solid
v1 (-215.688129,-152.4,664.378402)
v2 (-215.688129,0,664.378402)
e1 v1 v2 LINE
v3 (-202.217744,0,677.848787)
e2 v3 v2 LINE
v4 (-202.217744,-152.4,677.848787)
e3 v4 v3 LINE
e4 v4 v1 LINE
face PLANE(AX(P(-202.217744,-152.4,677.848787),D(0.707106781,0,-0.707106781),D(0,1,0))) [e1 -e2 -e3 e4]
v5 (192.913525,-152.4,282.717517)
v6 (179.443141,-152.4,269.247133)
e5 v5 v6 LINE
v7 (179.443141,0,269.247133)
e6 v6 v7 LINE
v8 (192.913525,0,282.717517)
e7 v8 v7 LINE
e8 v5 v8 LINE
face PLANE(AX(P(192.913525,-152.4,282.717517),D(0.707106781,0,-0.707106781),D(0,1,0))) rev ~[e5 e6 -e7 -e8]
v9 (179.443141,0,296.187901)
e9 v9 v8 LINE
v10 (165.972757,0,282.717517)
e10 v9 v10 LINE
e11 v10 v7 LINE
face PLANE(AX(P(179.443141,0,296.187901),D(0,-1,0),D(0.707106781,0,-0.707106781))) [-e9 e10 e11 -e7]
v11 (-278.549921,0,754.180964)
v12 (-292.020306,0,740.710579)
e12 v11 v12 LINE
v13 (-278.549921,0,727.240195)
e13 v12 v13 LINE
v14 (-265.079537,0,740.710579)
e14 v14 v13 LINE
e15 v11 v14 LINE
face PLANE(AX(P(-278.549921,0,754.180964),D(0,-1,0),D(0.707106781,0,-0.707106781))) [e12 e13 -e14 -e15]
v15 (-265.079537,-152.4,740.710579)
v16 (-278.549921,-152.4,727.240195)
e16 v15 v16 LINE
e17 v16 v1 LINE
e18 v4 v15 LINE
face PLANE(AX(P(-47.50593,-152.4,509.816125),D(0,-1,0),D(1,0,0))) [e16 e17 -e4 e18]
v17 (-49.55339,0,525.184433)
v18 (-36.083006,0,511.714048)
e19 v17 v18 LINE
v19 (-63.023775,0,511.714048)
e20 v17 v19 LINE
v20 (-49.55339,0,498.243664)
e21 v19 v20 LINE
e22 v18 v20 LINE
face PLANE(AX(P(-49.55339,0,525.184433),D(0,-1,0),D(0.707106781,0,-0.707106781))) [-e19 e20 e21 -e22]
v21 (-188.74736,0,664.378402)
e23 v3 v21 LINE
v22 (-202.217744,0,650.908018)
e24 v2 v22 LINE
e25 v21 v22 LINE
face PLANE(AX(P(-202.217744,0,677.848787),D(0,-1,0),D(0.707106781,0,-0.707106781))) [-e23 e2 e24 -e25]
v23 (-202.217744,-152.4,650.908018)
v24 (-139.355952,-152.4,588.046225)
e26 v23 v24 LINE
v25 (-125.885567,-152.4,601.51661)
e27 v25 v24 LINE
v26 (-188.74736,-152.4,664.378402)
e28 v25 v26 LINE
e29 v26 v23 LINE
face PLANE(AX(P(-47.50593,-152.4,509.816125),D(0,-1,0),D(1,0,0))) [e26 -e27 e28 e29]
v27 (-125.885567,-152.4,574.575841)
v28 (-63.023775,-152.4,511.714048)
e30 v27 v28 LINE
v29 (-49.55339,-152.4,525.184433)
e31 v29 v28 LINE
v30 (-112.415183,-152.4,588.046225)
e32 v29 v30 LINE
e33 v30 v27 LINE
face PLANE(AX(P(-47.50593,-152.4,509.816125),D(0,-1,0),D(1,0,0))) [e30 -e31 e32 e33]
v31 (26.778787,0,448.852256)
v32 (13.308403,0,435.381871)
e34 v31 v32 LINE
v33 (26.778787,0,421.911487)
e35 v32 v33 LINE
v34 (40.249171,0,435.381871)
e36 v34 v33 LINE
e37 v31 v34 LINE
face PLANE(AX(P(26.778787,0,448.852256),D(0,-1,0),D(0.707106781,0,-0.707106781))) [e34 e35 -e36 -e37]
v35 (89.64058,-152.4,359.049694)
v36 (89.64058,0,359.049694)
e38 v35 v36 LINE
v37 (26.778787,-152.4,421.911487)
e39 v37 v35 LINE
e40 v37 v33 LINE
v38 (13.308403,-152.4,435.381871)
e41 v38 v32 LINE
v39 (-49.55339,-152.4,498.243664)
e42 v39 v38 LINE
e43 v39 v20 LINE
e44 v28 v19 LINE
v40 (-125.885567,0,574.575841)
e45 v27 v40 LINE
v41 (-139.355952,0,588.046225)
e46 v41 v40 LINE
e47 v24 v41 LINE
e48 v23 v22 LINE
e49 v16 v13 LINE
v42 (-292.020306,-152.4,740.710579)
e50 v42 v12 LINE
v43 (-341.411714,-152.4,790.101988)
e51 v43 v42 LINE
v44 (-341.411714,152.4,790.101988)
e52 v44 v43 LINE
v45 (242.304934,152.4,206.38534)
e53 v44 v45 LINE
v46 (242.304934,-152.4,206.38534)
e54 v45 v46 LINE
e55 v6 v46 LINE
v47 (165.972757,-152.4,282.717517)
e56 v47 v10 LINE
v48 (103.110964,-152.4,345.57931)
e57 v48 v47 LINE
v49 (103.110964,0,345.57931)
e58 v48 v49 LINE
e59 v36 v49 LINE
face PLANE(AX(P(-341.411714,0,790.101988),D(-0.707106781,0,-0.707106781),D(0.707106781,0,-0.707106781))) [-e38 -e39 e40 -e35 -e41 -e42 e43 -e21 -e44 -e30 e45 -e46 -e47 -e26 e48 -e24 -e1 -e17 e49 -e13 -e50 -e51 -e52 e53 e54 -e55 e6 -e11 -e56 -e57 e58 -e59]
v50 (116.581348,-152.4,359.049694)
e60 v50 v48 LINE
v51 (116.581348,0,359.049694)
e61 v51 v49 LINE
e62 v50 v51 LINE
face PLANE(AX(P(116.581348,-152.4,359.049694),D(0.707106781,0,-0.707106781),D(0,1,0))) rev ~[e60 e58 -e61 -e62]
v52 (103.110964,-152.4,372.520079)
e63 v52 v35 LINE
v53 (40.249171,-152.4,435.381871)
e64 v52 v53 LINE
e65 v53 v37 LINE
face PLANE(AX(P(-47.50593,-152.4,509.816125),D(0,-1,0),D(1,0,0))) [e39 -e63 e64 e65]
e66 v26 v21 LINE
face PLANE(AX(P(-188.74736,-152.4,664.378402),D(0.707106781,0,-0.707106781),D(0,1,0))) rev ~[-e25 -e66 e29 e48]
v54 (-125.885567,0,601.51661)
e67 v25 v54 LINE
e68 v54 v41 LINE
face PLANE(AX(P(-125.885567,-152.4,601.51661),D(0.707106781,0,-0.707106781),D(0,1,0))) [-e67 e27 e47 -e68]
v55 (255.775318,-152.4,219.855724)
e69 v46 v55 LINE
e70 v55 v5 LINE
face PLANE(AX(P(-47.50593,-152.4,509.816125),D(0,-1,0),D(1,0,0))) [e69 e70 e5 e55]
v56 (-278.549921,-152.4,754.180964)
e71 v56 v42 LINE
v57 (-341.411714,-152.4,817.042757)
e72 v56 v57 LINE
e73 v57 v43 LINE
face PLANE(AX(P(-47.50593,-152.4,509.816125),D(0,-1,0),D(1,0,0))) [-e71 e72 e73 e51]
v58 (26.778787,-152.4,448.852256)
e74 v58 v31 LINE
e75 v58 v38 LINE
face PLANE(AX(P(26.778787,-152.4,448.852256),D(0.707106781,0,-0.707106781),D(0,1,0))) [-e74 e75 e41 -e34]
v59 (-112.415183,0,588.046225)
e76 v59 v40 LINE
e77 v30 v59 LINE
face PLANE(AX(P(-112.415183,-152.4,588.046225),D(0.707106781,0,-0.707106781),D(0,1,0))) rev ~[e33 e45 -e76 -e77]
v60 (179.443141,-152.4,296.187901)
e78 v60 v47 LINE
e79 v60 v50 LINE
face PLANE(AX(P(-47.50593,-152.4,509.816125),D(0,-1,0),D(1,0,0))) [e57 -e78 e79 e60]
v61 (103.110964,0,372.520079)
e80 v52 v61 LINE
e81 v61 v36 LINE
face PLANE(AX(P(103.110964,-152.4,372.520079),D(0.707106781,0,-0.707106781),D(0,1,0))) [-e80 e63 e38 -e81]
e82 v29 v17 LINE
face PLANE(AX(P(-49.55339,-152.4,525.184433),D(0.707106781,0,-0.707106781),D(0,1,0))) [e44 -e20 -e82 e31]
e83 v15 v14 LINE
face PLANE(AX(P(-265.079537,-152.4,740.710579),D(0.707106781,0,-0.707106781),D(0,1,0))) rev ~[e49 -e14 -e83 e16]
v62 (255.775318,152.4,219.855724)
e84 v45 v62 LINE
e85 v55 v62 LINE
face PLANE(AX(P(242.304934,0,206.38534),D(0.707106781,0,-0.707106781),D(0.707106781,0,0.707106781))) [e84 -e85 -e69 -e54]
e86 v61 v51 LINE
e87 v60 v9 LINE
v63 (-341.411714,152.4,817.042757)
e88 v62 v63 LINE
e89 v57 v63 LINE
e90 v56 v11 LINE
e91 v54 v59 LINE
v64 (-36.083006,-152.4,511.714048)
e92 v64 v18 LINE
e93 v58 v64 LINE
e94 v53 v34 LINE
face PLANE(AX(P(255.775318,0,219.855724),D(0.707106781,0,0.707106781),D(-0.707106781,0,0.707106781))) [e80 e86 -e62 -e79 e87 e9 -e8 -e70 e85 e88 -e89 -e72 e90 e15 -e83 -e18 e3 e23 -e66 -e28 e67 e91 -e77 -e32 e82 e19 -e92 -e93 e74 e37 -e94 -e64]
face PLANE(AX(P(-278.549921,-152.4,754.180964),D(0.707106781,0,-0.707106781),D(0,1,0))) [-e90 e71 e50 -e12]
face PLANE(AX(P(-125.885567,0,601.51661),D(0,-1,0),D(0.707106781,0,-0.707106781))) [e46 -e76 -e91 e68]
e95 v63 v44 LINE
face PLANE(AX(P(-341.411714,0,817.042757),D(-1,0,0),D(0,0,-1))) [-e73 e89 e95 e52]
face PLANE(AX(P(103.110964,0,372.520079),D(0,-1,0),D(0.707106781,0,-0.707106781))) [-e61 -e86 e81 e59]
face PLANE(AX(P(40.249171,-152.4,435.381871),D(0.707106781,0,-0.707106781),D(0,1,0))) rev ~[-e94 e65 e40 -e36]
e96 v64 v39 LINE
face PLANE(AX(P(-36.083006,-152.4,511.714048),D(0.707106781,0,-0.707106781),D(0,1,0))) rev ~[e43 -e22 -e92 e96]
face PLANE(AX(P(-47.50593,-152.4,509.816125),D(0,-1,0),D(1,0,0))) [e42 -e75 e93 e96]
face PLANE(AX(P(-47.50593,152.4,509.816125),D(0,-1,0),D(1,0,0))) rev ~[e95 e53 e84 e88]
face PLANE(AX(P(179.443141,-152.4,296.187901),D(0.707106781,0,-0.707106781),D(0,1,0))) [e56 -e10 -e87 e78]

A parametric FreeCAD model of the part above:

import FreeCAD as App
import Part
import Sketcher

V = App.Vector
Q = App.Units.Quantity


def add_polygon(sketch, points):
    """Adds a closed chain of lines whose ends are joined by coincident constraints."""
    first, n = sketch.GeometryCount, len(points)
    for a, b in zip(points, points[1:] + points[:1]):
        sketch.addGeometry(Part.LineSegment(App.Vector(*a, 0), App.Vector(*b, 0)), False)
    for i in range(n):
        sketch.addConstraint(Sketcher.Constraint("Coincident", first + i, 2, first + (i + 1) % n, 1))

doc = App.newDocument("Part")
body = doc.addObject("PartDesign::Body", "Body")

sketch1 = body.newObject("Sketcher::SketchObject", "Sketch")
sketch1.AttachmentSupport = (doc.getObject("XZ_Plane"), [""])
sketch1.MapMode = "FlatFace"
add_polygon(sketch1, [(-341.411714, 817.042757), (-341.411714, 790.101988), (242.304934, 206.38534), (255.775318, 219.855724)])
sketch1.addConstraint([
    Sketcher.Constraint("Vertical", 0),
    Sketcher.Constraint("Perpendicular", 1, 2),
    Sketcher.Constraint("Perpendicular", 2, 3),
    Sketcher.Constraint("Angle", 1, Q("-45 deg")),
    Sketcher.Constraint("Distance", 1, Q("32.5 in")),
    Sketcher.Constraint("Distance", 2, Q("0.75 in")),
    Sketcher.Constraint("DistanceY", -1, 1, 0, 2, Q("790.101988 mm")),
    Sketcher.Constraint("DistanceX", 0, 2, -1, 1, Q("341.411714 mm")),
])
pad1 = body.newObject("PartDesign::Pad", "Pad")
pad1.Profile = sketch1
pad1.Length = Q("12 in")
pad1.Midplane = True

sketch2 = body.newObject("Sketcher::SketchObject", "Sketch001")
sketch2.Placement = App.Placement(V(237.815521, 0, 237.815521), App.Rotation(V(0.707106781, 0, -0.707106781), V(0, 0.999999999, 0), V(0.707106781, 0, 0.707106781), "ZXY"))
add_polygon(sketch2, [(-730.251012, 0), (-730.251012, -152.4), (-711.201012, -152.4), (-711.201012, 0)])
add_polygon(sketch2, [(-622.301012, 0), (-622.301012, -152.4), (-603.251012, -152.4), (-603.251012, 0)])
add_polygon(sketch2, [(-514.351012, 0), (-514.351012, -152.4), (-495.301012, -152.4), (-495.301012, 0)])
add_polygon(sketch2, [(-406.401012, 0), (-406.401012, -152.4), (-387.351012, -152.4), (-387.351012, 0)])
add_polygon(sketch2, [(-298.451012, 0), (-298.451012, -152.4), (-279.401012, -152.4), (-279.401012, 0)])
add_polygon(sketch2, [(-190.501012, 0), (-190.501012, -152.4), (-171.451012, -152.4), (-171.451012, 0)])
add_polygon(sketch2, [(-82.551012, 0), (-82.551012, -152.4), (-63.501012, -152.4), (-63.501012, 0)])
sketch2.addConstraint([
    Sketcher.Constraint("Vertical", 0),
    Sketcher.Constraint("Horizontal", 1),
    Sketcher.Constraint("Vertical", 2),
    Sketcher.Constraint("Horizontal", 3),
    Sketcher.Constraint("Vertical", 4),
    Sketcher.Constraint("Horizontal", 5),
    Sketcher.Constraint("Vertical", 6),
    Sketcher.Constraint("Horizontal", 7),
    Sketcher.Constraint("Vertical", 8),
    Sketcher.Constraint("Horizontal", 9),
    Sketcher.Constraint("Vertical", 10),
    Sketcher.Constraint("Horizontal", 11),
    Sketcher.Constraint("Vertical", 12),
    Sketcher.Constraint("Horizontal", 13),
    Sketcher.Constraint("Vertical", 14),
    Sketcher.Constraint("Horizontal", 15),
    Sketcher.Constraint("Vertical", 16),
    Sketcher.Constraint("Horizontal", 17),
    Sketcher.Constraint("Vertical", 18),
    Sketcher.Constraint("Horizontal", 19),
    Sketcher.Constraint("Vertical", 20),
    Sketcher.Constraint("Horizontal", 21),
    Sketcher.Constraint("Vertical", 22),
    Sketcher.Constraint("Horizontal", 23),
    Sketcher.Constraint("Vertical", 24),
    Sketcher.Constraint("Horizontal", 25),
    Sketcher.Constraint("Vertical", 26),
    Sketcher.Constraint("Horizontal", 27),
    Sketcher.Constraint("PointOnObject", 2, 2, -1),
    Sketcher.Constraint("PointOnObject", 6, 2, -1),
    Sketcher.Constraint("PointOnObject", 10, 2, -1),
    Sketcher.Constraint("PointOnObject", 14, 2, -1),
    Sketcher.Constraint("PointOnObject", 18, 2, -1),
    Sketcher.Constraint("PointOnObject", 22, 2, -1),
    Sketcher.Constraint("PointOnObject", 26, 2, -1),
    Sketcher.Constraint("Horizontal", 1, 2, 4, 2),
    Sketcher.Constraint("Horizontal", 5, 2, 8, 2),
    Sketcher.Constraint("Horizontal", 9, 2, 12, 2),
    Sketcher.Constraint("Horizontal", 13, 2, 16, 2),
    Sketcher.Constraint("Horizontal", 17, 2, 20, 2),
    Sketcher.Constraint("Horizontal", 21, 2, 24, 2),
    Sketcher.Constraint("Equal", 3, 5),
    Sketcher.Constraint("Equal", 7, 9),
    Sketcher.Constraint("Equal", 11, 13),
    Sketcher.Constraint("Equal", 15, 17),
    Sketcher.Constraint("Equal", 19, 21),
    Sketcher.Constraint("Equal", 23, 25),
    Sketcher.Constraint("DistanceY", 0, 2, 0, 1, Q("6 in")),
    Sketcher.Constraint("DistanceX", 0, 2, 5, 2, Q("5 in")),
    Sketcher.Constraint("DistanceX", 4, 2, 9, 2, Q("5 in")),
    Sketcher.Constraint("DistanceX", 8, 2, 13, 2, Q("5 in")),
    Sketcher.Constraint("DistanceX", 12, 2, 17, 2, Q("5 in")),
    Sketcher.Constraint("DistanceX", 16, 2, 21, 2, Q("5 in")),
    Sketcher.Constraint("DistanceX", 20, 2, 25, 2, Q("5 in")),
    Sketcher.Constraint("DistanceX", 1, 1, 1, 2, Q("0.75 in")),
    Sketcher.Constraint("DistanceX", 0, 2, -1, 1, Q("730.251012 mm")),
])
pocket1 = body.newObject("PartDesign::Pocket", "Pocket")
pocket1.Profile = sketch2
pocket1.Length = Q("0.75 in")

doc.recompute()
